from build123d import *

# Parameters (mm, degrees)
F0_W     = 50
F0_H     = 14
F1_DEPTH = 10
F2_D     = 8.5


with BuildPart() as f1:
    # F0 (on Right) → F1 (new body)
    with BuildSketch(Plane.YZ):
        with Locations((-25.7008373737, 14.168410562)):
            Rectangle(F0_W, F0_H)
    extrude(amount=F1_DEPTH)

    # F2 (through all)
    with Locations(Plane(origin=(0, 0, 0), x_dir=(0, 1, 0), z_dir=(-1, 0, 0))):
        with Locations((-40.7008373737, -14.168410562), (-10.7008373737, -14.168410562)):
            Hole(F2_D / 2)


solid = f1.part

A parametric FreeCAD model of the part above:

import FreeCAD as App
import Part
import Sketcher
Q = App.Units.Quantity

doc = App.newDocument("Part")
body = doc.addObject("PartDesign::Body", "Body")

sketch1 = doc.addObject("Sketcher::SketchObject", "Sketch")
body.addObject(sketch1)
sketch1.AttachmentSupport = (doc.YZ_Plane, [""])
sketch1.MapMode = "FlatFace"
sketch1.addGeometry([
    Part.LineSegment(App.Vector(-51, 21, 0), App.Vector(-51, 7, 0)),
    Part.LineSegment(App.Vector(-51, 7, 0), App.Vector(-1, 7, 0)),
    Part.LineSegment(App.Vector(-1, 7, 0), App.Vector(-1, 21, 0)),
    Part.LineSegment(App.Vector(-1, 21, 0), App.Vector(-51, 21, 0)),
], False)
sketch1.addConstraint([
    Sketcher.Constraint("Coincident", 0, 2, 1, 1),
    Sketcher.Constraint("Coincident", 1, 2, 2, 1),
    Sketcher.Constraint("Coincident", 2, 2, 3, 1),
    Sketcher.Constraint("Coincident", 3, 2, 0, 1),
    Sketcher.Constraint("Vertical", 0),
    Sketcher.Constraint("Horizontal", 1),
    Sketcher.Constraint("Vertical", 2),
    Sketcher.Constraint("Horizontal", 3),
    Sketcher.Constraint("DistanceX", 1, 1, 1, 2, Q("50 mm")),
    Sketcher.Constraint("DistanceY", 0, 2, 0, 1, Q("14 mm")),
    Sketcher.Constraint("DistanceY", -1, 1, 0, 2, Q("7.168411 mm")),
    Sketcher.Constraint("DistanceX", 0, 2, -1, 1, Q("50.700837 mm")),
])
pad1 = doc.addObject("PartDesign::Pad", "Pad")
body.addObject(pad1)
pad1.Profile = sketch1
pad1.Length = 10

sketch2 = doc.addObject("Sketcher::SketchObject", "Sketch001")
body.addObject(sketch2)
sketch2.AttachmentSupport = (doc.YZ_Plane, [""])
sketch2.MapMode = "FlatFace"
sketch2.addGeometry([
    Part.Circle(App.Vector(-40.7, 14.2, 0), App.Vector(0, 0, 1), 4.2),
    Part.Circle(App.Vector(-10.7, 14.2, 0), App.Vector(0, 0, 1), 4.2),
], False)
sketch2.addConstraint([
    Sketcher.Constraint("Equal", 0, 1),
    Sketcher.Constraint("Horizontal", 0, 3, 1, 3),
    Sketcher.Constraint("Diameter", 0, Q("8.5 mm")),
    Sketcher.Constraint("DistanceX", 0, 3, 1, 3, Q("30 mm")),
    Sketcher.Constraint("DistanceY", -1, 1, 0, 3, Q("14.168411 mm")),
    Sketcher.Constraint("DistanceX", 0, 3, -1, 1, Q("40.700837 mm")),
])
doc.recompute()
hole = doc.addObject("PartDesign::Hole", "Hole")
body.addObject(hole)
hole.Profile = sketch2
hole.ThreadType = "None"
hole.Diameter = 8.5
hole.DepthType = "ThroughAll"
hole.Reversed = True

doc.recompute()
